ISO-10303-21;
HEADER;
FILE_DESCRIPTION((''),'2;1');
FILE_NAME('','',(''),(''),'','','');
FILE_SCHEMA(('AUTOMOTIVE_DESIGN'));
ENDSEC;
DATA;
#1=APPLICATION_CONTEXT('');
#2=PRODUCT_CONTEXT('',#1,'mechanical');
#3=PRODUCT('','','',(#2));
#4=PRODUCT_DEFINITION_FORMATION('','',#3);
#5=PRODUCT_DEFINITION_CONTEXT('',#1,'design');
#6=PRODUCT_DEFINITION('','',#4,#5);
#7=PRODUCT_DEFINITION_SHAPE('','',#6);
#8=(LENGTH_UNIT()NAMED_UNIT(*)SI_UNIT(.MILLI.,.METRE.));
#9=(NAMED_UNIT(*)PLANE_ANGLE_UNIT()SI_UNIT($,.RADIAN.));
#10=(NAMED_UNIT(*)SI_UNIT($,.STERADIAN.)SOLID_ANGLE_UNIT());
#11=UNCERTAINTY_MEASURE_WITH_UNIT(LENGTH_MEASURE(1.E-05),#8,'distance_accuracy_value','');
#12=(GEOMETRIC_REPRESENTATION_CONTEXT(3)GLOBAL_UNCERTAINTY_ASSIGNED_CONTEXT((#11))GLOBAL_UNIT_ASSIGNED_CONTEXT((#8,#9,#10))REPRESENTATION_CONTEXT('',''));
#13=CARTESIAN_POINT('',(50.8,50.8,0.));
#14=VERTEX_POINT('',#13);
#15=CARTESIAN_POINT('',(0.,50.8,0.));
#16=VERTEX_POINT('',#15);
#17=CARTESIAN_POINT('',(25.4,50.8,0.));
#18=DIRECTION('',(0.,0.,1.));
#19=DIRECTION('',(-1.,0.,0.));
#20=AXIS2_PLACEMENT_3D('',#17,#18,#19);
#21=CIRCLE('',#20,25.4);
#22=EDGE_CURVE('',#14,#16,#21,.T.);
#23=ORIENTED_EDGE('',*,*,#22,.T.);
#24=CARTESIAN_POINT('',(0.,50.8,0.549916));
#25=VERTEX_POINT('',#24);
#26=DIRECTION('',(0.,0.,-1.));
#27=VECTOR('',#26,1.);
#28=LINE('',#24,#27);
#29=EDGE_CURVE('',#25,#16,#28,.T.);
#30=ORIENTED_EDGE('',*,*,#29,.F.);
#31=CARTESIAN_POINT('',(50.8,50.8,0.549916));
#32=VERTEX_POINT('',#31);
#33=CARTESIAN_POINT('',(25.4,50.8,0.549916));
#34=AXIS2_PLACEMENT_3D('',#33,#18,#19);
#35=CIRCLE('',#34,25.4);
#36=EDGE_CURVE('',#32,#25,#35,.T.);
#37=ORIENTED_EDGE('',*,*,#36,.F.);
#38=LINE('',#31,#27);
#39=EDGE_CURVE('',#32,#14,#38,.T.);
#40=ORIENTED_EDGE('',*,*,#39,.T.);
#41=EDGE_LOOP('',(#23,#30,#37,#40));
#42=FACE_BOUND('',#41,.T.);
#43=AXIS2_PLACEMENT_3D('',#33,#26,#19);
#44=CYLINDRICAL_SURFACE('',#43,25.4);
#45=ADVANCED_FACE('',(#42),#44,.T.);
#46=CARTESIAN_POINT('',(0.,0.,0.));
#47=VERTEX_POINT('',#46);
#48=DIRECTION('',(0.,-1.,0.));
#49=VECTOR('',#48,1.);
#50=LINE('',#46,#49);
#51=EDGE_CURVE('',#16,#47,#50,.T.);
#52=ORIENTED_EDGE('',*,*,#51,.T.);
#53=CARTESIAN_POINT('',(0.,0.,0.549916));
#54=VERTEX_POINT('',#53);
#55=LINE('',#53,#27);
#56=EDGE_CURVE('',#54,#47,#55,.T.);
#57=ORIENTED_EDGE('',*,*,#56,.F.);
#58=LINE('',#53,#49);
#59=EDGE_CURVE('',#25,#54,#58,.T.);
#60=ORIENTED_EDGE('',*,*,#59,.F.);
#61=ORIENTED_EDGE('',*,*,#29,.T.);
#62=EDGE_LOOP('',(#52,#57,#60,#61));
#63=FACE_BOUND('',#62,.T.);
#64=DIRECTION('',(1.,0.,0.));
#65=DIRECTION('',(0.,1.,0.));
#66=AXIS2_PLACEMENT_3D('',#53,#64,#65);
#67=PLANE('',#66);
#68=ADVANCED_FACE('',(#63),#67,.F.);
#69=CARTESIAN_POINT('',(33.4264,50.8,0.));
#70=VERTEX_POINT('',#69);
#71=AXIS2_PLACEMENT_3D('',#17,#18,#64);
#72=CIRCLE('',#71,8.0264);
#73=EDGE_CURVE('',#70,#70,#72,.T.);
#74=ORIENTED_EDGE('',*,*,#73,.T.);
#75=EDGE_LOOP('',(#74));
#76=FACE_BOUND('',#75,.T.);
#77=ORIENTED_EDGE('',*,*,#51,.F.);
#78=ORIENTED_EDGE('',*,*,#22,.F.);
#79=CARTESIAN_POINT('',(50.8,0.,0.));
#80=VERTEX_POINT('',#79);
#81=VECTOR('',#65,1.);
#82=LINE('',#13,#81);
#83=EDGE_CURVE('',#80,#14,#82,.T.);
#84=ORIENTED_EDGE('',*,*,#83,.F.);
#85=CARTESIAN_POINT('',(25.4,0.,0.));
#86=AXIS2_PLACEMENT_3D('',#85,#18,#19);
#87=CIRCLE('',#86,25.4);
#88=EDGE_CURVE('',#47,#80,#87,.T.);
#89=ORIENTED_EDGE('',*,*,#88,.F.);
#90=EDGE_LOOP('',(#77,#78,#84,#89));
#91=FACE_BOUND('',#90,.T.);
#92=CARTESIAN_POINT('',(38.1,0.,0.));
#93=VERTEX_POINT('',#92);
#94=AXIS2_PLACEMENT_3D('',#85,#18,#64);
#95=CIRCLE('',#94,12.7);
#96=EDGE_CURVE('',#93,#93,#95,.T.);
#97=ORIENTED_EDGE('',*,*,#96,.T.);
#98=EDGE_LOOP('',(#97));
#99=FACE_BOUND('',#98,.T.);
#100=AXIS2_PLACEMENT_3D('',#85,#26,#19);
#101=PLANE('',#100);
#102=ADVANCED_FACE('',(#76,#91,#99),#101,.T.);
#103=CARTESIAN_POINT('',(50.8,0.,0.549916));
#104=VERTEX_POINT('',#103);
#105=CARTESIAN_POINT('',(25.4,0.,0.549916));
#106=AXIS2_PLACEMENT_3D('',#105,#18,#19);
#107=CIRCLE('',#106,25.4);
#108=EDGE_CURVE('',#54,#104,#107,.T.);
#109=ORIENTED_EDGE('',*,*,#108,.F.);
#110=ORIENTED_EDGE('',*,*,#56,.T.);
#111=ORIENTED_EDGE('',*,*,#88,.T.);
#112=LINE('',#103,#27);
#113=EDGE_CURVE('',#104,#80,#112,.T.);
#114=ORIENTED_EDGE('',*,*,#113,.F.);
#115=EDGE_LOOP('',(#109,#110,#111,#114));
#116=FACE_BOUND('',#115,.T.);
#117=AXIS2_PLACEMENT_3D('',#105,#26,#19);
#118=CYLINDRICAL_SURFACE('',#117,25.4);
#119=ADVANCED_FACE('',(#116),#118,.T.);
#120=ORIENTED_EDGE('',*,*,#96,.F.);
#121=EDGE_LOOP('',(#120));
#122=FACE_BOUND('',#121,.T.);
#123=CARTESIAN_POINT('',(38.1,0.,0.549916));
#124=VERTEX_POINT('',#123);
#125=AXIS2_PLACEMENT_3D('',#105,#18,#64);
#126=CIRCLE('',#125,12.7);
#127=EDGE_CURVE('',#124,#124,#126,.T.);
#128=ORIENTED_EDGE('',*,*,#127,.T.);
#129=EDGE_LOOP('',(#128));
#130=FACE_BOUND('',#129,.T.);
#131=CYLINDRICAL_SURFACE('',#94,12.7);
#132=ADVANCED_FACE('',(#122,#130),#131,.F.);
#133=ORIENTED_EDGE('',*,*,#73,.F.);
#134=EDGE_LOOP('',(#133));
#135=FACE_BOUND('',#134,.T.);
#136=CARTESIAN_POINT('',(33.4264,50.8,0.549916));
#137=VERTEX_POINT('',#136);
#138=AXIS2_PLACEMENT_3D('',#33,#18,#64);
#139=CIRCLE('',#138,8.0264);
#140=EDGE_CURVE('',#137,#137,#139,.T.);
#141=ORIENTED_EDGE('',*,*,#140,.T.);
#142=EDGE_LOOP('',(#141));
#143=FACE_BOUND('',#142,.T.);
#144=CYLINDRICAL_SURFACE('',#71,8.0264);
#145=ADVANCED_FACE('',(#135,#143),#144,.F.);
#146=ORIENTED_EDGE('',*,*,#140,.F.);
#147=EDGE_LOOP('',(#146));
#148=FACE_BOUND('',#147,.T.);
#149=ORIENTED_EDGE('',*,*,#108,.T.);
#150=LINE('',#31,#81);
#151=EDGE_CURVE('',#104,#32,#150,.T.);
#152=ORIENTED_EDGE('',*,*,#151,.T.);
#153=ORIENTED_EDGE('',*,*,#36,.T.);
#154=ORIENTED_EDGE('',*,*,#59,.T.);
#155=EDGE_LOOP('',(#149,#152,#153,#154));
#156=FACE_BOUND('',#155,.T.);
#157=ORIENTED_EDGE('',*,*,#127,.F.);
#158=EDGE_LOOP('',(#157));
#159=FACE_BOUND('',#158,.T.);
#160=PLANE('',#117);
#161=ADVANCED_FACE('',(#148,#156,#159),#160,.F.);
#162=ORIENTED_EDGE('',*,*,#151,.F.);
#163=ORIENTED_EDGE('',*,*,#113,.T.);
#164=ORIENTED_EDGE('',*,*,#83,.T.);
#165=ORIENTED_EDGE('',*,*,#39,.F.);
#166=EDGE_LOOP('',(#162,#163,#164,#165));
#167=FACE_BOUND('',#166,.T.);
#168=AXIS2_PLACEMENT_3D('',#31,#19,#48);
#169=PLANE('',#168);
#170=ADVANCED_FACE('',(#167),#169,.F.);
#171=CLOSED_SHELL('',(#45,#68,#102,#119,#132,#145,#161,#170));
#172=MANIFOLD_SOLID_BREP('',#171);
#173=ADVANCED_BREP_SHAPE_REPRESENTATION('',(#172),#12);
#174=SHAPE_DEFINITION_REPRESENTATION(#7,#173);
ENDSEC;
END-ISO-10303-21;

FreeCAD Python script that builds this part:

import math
import FreeCAD as App
import Part
import Sketcher
Q = App.Units.Quantity

doc = App.newDocument("Part")
params = doc.addObject("Spreadsheet::Sheet", "Params")
for row, (alias, value) in enumerate([
    ("sketch1_radius", "1 in"),
    ("sketch1_height", "2 in"),
    ("pad1_length", "0.549916 mm"),
    ("sketch2_diameter", "1 in"),
    ("sketch2_diameter2", "0.632 in"),
], start=1):
    params.set(f"A{row}", alias)
    params.set(f"B{row}", "=" + value)
    params.setAlias(f"B{row}", alias)

body = doc.addObject("PartDesign::Body", "Body")

sketch1 = body.newObject("Sketcher::SketchObject", "Sketch")
sketch1.AttachmentSupport = (doc.getObject("XY_Plane"), [""])
sketch1.MapMode = "FlatFace"
sketch1.addGeometry(Part.LineSegment(App.Vector(0, 50.8, 0), App.Vector(0, 0, 0)), False)
sketch1.addGeometry(Part.ArcOfCircle(Part.Circle(App.Vector(25.4, 0, 0), App.Vector(0, 0, 1), 25.4), math.radians(180), math.radians(360)), False)
sketch1.addGeometry(Part.LineSegment(App.Vector(50.8, 0, 0), App.Vector(50.8, 50.8, 0)), False)
sketch1.addGeometry(Part.ArcOfCircle(Part.Circle(App.Vector(25.4, 50.8, 0), App.Vector(0, 0, 1), 25.4), math.radians(0), math.radians(180)), False)
sketch1.addConstraint(Sketcher.Constraint("Tangent", 0, 2, 1, 1))
sketch1.addConstraint(Sketcher.Constraint("Tangent", 1, 2, 2, 1))
sketch1.addConstraint(Sketcher.Constraint("Tangent", 2, 2, 3, 1))
sketch1.addConstraint(Sketcher.Constraint("Tangent", 3, 2, 0, 1))
sketch1.addConstraint(Sketcher.Constraint("Vertical", 0))
sketch1.addConstraint(Sketcher.Constraint("Vertical", 2))
sketch1.addConstraint(Sketcher.Constraint("Coincident", 0, 2, -1, 1))
sketch1.addConstraint(Sketcher.Constraint("Radius", 1, Q("1 in")))
sketch1.addConstraint(Sketcher.Constraint("DistanceY", 0, 2, 0, 1, Q("2 in")))
sketch1.setExpression("Constraints[7]", "Params.sketch1_radius")
sketch1.setExpression("Constraints[8]", "Params.sketch1_height")
pad1 = body.newObject("PartDesign::Pad", "Pad")
pad1.Profile = sketch1
pad1.setExpression("Length", "Params.pad1_length")

sketch2 = body.newObject("Sketcher::SketchObject", "Sketch001")
sketch2.AttachmentSupport = (doc.getObject("XY_Plane"), [""])
sketch2.MapMode = "FlatFace"
sketch2.AttachmentOffset = App.Placement(App.Vector(0, 0, 0.549916), App.Rotation())
sketch2.addGeometry(Part.Circle(App.Vector(25.4, 0, 0), App.Vector(0, 0, 1), 12.7), False)
sketch2.addGeometry(Part.Circle(App.Vector(25.4, 50.8, 0), App.Vector(0, 0, 1), 8.0264), False)
sketch2.addConstraint(Sketcher.Constraint("PointOnObject", 0, 3, -1))
sketch2.addConstraint(Sketcher.Constraint("Vertical", 0, 3, 1, 3))
sketch2.addConstraint(Sketcher.Constraint("Diameter", 0, Q("1 in")))
sketch2.addConstraint(Sketcher.Constraint("Diameter", 1, Q("0.632 in")))
sketch2.addConstraint(Sketcher.Constraint("DistanceX", -1, 1, 0, 3, Q("1 in")))
sketch2.addConstraint(Sketcher.Constraint("DistanceY", -1, 1, 1, 3, Q("2 in")))
sketch2.setExpression("Constraints[2]", "Params.sketch2_diameter")
sketch2.setExpression("Constraints[3]", "Params.sketch2_diameter2")
pocket1 = body.newObject("PartDesign::Pocket", "Pocket")
pocket1.Profile = sketch2
pocket1.Type = "ThroughAll"

doc.recompute()
